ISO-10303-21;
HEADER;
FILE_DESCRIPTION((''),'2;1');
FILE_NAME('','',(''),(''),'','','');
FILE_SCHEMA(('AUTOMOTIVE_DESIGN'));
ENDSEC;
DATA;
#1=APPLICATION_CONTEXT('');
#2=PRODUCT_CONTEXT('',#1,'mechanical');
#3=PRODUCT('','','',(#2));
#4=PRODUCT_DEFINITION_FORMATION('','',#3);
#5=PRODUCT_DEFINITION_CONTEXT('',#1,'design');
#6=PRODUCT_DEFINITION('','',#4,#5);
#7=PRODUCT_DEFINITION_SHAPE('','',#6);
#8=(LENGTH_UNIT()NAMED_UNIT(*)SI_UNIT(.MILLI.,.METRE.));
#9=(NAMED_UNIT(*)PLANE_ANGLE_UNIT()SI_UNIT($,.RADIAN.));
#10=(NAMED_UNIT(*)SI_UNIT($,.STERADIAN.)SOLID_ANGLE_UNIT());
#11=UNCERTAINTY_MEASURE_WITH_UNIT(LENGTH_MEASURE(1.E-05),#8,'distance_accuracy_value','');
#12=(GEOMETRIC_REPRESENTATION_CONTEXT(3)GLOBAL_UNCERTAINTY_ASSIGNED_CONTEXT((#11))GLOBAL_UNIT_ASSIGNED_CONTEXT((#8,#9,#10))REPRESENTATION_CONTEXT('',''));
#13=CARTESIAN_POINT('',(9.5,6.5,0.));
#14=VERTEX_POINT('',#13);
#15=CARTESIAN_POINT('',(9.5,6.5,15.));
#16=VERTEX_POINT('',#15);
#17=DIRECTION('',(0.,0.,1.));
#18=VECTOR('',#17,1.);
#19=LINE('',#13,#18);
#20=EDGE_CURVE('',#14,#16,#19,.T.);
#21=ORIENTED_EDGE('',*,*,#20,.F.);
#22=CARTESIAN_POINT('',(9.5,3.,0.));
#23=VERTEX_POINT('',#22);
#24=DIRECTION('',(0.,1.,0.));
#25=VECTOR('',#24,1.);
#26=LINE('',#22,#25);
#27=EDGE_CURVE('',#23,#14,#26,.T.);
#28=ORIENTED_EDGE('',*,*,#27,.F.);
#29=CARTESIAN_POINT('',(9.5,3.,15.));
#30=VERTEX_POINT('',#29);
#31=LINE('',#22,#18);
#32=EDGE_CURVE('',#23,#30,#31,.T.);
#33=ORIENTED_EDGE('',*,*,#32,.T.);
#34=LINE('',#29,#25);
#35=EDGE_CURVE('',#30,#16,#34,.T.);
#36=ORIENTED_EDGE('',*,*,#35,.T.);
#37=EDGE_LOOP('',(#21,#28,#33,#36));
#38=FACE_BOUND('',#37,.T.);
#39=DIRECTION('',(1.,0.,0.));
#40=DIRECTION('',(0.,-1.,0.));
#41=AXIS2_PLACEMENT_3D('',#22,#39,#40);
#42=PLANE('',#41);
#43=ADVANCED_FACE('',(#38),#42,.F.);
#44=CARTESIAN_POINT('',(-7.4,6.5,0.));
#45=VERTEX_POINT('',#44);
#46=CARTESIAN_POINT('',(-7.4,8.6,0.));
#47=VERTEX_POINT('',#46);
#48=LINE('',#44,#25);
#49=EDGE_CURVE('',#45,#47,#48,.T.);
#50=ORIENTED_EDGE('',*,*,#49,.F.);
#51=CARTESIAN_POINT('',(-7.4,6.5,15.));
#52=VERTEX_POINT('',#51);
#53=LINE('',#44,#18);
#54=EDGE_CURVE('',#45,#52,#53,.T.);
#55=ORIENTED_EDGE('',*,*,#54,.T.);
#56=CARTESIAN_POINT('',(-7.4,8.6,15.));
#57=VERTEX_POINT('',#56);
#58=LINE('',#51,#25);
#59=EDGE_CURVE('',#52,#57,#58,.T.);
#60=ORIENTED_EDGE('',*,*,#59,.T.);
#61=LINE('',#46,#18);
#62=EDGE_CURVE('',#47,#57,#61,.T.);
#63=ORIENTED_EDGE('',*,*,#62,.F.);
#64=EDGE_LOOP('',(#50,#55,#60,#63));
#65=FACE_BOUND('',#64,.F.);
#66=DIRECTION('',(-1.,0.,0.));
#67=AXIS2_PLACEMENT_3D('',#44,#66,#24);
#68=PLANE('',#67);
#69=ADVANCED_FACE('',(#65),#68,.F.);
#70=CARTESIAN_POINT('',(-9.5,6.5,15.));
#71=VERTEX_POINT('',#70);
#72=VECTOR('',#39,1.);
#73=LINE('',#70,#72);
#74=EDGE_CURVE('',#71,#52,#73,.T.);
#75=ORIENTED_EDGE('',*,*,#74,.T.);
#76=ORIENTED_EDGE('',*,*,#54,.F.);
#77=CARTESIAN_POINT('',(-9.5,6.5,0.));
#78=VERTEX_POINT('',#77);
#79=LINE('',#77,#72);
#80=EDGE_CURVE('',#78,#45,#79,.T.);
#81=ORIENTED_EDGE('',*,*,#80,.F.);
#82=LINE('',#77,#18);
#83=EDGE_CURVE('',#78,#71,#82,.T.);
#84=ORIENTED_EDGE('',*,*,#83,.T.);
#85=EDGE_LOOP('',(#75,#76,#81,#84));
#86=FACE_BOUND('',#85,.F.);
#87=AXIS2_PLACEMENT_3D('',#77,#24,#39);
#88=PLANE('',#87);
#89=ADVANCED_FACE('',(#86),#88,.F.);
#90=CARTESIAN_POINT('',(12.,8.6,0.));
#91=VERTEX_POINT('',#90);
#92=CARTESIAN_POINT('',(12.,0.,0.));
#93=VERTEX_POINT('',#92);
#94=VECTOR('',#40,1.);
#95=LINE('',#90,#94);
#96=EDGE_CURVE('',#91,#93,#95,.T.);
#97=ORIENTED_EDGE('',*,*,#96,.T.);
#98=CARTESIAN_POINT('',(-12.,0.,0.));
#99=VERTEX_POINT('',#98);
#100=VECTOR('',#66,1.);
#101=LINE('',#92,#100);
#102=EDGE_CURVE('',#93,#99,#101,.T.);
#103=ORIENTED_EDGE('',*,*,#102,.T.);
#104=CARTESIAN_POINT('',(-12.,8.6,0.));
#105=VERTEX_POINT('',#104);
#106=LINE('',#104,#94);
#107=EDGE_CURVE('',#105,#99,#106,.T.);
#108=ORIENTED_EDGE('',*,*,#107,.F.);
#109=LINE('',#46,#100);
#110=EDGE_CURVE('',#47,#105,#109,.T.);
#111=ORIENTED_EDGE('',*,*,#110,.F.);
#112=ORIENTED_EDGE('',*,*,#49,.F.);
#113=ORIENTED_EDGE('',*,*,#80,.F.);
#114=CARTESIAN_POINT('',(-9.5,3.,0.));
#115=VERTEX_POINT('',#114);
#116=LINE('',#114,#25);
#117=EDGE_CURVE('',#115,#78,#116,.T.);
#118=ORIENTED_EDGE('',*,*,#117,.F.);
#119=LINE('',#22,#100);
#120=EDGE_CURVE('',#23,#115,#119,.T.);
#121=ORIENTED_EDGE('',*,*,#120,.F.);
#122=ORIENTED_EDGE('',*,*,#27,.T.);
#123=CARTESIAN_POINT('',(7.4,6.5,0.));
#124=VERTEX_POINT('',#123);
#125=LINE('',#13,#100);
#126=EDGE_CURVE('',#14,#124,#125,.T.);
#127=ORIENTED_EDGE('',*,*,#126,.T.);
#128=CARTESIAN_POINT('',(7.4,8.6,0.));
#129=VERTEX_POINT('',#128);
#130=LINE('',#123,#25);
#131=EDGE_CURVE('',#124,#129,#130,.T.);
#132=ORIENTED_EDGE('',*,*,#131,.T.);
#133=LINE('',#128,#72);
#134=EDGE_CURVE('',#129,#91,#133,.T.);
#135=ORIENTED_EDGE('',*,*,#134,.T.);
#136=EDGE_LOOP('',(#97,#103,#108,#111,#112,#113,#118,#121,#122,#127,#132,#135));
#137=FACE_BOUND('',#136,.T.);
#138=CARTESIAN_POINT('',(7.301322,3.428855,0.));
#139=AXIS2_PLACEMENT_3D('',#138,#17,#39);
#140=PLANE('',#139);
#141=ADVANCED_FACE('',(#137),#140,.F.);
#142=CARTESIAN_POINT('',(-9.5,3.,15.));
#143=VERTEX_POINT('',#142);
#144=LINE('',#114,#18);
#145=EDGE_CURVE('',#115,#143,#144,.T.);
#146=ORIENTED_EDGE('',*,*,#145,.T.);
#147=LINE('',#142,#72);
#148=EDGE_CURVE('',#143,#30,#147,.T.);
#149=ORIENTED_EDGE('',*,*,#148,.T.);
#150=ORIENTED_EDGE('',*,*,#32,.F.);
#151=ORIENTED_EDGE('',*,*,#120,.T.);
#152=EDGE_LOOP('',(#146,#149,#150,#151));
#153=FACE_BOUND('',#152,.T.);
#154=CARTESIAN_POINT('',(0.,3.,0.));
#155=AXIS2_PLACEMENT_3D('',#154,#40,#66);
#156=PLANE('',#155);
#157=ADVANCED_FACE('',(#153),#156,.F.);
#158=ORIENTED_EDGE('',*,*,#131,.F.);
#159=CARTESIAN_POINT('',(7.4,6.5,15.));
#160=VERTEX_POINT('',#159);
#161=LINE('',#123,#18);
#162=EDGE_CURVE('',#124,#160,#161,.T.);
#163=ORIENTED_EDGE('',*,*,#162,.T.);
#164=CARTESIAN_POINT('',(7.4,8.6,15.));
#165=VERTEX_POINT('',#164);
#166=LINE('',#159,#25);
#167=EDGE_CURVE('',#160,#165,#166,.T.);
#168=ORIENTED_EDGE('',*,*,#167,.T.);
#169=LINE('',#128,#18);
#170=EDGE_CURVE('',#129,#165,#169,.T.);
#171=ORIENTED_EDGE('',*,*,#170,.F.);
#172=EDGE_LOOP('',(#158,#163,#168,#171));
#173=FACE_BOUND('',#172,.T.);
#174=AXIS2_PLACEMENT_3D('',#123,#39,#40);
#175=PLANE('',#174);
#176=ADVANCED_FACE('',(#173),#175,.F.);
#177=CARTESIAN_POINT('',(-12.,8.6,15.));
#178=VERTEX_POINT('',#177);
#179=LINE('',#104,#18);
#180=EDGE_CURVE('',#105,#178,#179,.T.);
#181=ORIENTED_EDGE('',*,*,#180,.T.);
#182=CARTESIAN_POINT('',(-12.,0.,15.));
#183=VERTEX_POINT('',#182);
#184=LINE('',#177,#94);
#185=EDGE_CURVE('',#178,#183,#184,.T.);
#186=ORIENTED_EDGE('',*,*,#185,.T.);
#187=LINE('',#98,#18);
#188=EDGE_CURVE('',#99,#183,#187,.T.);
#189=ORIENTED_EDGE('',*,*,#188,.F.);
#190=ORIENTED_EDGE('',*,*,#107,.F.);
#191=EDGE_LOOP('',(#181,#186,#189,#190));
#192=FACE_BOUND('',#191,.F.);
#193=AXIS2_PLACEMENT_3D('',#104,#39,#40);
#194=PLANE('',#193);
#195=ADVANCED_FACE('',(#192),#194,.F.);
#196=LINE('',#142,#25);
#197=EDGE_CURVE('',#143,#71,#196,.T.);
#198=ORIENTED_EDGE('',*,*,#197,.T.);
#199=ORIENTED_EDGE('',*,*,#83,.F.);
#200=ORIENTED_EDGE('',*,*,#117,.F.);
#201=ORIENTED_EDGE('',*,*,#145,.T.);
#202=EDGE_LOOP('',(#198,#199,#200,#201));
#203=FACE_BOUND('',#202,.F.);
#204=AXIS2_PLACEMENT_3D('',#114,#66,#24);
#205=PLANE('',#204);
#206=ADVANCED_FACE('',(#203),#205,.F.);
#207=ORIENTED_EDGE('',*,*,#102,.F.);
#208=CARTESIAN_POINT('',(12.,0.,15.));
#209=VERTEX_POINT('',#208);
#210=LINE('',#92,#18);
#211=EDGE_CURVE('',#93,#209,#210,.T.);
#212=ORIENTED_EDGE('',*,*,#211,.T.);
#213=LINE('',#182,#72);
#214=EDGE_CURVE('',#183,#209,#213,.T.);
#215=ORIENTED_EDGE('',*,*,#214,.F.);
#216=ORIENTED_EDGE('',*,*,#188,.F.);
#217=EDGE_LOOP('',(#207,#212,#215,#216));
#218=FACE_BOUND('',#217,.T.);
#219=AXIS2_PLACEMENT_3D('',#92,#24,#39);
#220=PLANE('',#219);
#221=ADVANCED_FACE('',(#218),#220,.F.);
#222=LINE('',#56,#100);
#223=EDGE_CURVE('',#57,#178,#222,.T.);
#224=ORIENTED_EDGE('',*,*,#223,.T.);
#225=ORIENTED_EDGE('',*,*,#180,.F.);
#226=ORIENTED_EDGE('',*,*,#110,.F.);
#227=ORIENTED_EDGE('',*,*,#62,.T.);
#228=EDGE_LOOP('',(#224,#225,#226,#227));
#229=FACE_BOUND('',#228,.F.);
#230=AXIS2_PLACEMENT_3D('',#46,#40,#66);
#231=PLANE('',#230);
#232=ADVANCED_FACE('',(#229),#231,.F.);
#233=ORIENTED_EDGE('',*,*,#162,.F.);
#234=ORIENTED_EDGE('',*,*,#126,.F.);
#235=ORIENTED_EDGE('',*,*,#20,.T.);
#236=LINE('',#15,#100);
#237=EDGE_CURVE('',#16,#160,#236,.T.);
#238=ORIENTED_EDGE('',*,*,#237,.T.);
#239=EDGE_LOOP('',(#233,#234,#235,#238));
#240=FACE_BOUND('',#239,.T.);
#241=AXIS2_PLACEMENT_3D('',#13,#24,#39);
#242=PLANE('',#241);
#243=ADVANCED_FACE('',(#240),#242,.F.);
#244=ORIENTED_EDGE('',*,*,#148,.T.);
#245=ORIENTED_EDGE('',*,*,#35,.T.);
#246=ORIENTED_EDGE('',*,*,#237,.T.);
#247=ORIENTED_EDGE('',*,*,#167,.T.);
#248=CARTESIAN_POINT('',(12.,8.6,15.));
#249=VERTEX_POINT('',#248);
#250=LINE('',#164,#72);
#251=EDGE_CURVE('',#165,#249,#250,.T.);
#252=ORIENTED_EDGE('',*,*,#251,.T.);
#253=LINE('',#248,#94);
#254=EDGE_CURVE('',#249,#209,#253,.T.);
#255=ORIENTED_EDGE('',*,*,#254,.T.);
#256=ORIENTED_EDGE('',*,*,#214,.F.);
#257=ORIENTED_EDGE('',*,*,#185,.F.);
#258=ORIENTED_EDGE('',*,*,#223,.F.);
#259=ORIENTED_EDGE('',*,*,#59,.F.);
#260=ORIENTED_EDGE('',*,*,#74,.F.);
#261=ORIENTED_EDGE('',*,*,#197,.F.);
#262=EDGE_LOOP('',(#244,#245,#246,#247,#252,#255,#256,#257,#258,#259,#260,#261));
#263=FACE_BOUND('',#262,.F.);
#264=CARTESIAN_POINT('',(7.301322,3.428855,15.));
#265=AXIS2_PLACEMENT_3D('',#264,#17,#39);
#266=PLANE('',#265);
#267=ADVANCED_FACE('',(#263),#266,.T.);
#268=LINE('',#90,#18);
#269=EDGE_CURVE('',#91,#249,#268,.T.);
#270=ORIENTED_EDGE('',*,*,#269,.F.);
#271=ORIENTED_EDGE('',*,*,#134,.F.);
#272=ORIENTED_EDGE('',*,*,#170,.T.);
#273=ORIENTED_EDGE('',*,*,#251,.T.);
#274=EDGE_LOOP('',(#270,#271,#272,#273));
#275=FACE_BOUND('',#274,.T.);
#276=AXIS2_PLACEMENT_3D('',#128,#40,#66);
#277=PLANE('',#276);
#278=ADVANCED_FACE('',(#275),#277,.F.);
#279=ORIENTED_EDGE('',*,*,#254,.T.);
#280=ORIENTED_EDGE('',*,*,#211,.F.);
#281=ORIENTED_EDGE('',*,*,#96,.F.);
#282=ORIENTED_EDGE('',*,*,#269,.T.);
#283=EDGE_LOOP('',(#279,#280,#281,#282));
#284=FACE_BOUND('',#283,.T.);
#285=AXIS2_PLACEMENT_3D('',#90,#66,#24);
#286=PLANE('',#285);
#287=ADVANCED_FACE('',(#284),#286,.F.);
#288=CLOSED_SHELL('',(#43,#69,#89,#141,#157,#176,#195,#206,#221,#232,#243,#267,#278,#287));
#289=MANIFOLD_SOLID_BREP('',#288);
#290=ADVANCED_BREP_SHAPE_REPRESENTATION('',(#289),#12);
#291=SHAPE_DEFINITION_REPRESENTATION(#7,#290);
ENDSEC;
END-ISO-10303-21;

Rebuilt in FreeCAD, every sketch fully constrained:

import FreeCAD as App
import Part
import Sketcher
from FreeCAD import Vector

doc = App.newDocument("Part")
body = doc.addObject("PartDesign::Body", "Body")

# Sketch on XY plane
sketch1 = doc.addObject("Sketcher::SketchObject", "Sketch")
body.addObject(sketch1)
sketch1.AttachmentSupport = (doc.XY_Plane, [""])
sketch1.MapMode = "FlatFace"
sketch1.addGeometry(Part.LineSegment(Vector(0, 0, 0), Vector(0, 3, 0)), False)
sketch1.addGeometry(Part.LineSegment(Vector(0, 3, 0), Vector(-9.5, 3, 0)), False)
sketch1.addGeometry(Part.LineSegment(Vector(-9.5, 3, 0), Vector(-9.5, 6.5, 0)), False)
sketch1.addGeometry(Part.LineSegment(Vector(-9.5, 6.5, 0), Vector(-7.4, 6.5, 0)), False)
sketch1.addGeometry(Part.LineSegment(Vector(-7.4, 6.5, 0), Vector(-7.4, 8.6, 0)), False)
sketch1.addGeometry(Part.LineSegment(Vector(-7.4, 8.6, 0), Vector(-12, 8.6, 0)), False)
sketch1.addGeometry(Part.LineSegment(Vector(-12, 8.6, 0), Vector(-12, 0, 0)), False)
sketch1.addGeometry(Part.LineSegment(Vector(-12, 0, 0), Vector(0, 0, 0)), False)
sketch1.addConstraint(Sketcher.Constraint("Coincident", 0, 2, 1, 1))
sketch1.addConstraint(Sketcher.Constraint("Coincident", 1, 2, 2, 1))
sketch1.addConstraint(Sketcher.Constraint("Coincident", 2, 2, 3, 1))
sketch1.addConstraint(Sketcher.Constraint("Coincident", 3, 2, 4, 1))
sketch1.addConstraint(Sketcher.Constraint("Coincident", 4, 2, 5, 1))
sketch1.addConstraint(Sketcher.Constraint("Coincident", 5, 2, 6, 1))
sketch1.addConstraint(Sketcher.Constraint("Coincident", 6, 2, 7, 1))
sketch1.addConstraint(Sketcher.Constraint("Coincident", 7, 2, 0, 1))
sketch1.addConstraint(Sketcher.Constraint("Vertical", 0))
sketch1.addConstraint(Sketcher.Constraint("Horizontal", 1))
sketch1.addConstraint(Sketcher.Constraint("Vertical", 2))
sketch1.addConstraint(Sketcher.Constraint("Horizontal", 3))
sketch1.addConstraint(Sketcher.Constraint("Vertical", 4))
sketch1.addConstraint(Sketcher.Constraint("Horizontal", 5))
sketch1.addConstraint(Sketcher.Constraint("Vertical", 6))
sketch1.addConstraint(Sketcher.Constraint("Horizontal", 7))
sketch1.addConstraint(Sketcher.Constraint("Coincident", 7, 2, -1, 1))
sketch1.addConstraint(Sketcher.Constraint("Equal", 3, 4))
sketch1.addConstraint(Sketcher.Constraint("DistanceX", 7, 1, 7, 2, 12.0))
sketch1.addConstraint(Sketcher.Constraint("DistanceY", 0, 1, 0, 2, 3.0))
sketch1.addConstraint(Sketcher.Constraint("DistanceX", 1, 2, 1, 1, 9.5))
sketch1.addConstraint(Sketcher.Constraint("DistanceX", 3, 1, 3, 2, 2.1))
sketch1.addConstraint(Sketcher.Constraint("DistanceY", 2, 1, 2, 2, 3.5))
pad1 = doc.addObject("PartDesign::Pad", "Pad")
body.addObject(pad1)
pad1.Profile = sketch1
pad1.Length = 15
body2 = doc.addObject("PartDesign::Body", "Body001")
doc.recompute()

body2.BaseFeature = body
doc.recompute()

mirroring = doc.addObject("Part::Mirroring", "Mirroring")
mirroring.Source = body
mirroring.Base = Vector(0, 0, 0)
mirroring.Normal = Vector(1, 0, 0)
body3 = doc.addObject("PartDesign::Body", "Body002")
body3.BaseFeature = mirroring
boolean = doc.addObject("PartDesign::Boolean", "Boolean")
body2.addObject(boolean)
boolean.Type = "Fuse"
boolean.addObjects([body3])
doc.recompute()
mirroring.Visibility = False

doc.recompute()
